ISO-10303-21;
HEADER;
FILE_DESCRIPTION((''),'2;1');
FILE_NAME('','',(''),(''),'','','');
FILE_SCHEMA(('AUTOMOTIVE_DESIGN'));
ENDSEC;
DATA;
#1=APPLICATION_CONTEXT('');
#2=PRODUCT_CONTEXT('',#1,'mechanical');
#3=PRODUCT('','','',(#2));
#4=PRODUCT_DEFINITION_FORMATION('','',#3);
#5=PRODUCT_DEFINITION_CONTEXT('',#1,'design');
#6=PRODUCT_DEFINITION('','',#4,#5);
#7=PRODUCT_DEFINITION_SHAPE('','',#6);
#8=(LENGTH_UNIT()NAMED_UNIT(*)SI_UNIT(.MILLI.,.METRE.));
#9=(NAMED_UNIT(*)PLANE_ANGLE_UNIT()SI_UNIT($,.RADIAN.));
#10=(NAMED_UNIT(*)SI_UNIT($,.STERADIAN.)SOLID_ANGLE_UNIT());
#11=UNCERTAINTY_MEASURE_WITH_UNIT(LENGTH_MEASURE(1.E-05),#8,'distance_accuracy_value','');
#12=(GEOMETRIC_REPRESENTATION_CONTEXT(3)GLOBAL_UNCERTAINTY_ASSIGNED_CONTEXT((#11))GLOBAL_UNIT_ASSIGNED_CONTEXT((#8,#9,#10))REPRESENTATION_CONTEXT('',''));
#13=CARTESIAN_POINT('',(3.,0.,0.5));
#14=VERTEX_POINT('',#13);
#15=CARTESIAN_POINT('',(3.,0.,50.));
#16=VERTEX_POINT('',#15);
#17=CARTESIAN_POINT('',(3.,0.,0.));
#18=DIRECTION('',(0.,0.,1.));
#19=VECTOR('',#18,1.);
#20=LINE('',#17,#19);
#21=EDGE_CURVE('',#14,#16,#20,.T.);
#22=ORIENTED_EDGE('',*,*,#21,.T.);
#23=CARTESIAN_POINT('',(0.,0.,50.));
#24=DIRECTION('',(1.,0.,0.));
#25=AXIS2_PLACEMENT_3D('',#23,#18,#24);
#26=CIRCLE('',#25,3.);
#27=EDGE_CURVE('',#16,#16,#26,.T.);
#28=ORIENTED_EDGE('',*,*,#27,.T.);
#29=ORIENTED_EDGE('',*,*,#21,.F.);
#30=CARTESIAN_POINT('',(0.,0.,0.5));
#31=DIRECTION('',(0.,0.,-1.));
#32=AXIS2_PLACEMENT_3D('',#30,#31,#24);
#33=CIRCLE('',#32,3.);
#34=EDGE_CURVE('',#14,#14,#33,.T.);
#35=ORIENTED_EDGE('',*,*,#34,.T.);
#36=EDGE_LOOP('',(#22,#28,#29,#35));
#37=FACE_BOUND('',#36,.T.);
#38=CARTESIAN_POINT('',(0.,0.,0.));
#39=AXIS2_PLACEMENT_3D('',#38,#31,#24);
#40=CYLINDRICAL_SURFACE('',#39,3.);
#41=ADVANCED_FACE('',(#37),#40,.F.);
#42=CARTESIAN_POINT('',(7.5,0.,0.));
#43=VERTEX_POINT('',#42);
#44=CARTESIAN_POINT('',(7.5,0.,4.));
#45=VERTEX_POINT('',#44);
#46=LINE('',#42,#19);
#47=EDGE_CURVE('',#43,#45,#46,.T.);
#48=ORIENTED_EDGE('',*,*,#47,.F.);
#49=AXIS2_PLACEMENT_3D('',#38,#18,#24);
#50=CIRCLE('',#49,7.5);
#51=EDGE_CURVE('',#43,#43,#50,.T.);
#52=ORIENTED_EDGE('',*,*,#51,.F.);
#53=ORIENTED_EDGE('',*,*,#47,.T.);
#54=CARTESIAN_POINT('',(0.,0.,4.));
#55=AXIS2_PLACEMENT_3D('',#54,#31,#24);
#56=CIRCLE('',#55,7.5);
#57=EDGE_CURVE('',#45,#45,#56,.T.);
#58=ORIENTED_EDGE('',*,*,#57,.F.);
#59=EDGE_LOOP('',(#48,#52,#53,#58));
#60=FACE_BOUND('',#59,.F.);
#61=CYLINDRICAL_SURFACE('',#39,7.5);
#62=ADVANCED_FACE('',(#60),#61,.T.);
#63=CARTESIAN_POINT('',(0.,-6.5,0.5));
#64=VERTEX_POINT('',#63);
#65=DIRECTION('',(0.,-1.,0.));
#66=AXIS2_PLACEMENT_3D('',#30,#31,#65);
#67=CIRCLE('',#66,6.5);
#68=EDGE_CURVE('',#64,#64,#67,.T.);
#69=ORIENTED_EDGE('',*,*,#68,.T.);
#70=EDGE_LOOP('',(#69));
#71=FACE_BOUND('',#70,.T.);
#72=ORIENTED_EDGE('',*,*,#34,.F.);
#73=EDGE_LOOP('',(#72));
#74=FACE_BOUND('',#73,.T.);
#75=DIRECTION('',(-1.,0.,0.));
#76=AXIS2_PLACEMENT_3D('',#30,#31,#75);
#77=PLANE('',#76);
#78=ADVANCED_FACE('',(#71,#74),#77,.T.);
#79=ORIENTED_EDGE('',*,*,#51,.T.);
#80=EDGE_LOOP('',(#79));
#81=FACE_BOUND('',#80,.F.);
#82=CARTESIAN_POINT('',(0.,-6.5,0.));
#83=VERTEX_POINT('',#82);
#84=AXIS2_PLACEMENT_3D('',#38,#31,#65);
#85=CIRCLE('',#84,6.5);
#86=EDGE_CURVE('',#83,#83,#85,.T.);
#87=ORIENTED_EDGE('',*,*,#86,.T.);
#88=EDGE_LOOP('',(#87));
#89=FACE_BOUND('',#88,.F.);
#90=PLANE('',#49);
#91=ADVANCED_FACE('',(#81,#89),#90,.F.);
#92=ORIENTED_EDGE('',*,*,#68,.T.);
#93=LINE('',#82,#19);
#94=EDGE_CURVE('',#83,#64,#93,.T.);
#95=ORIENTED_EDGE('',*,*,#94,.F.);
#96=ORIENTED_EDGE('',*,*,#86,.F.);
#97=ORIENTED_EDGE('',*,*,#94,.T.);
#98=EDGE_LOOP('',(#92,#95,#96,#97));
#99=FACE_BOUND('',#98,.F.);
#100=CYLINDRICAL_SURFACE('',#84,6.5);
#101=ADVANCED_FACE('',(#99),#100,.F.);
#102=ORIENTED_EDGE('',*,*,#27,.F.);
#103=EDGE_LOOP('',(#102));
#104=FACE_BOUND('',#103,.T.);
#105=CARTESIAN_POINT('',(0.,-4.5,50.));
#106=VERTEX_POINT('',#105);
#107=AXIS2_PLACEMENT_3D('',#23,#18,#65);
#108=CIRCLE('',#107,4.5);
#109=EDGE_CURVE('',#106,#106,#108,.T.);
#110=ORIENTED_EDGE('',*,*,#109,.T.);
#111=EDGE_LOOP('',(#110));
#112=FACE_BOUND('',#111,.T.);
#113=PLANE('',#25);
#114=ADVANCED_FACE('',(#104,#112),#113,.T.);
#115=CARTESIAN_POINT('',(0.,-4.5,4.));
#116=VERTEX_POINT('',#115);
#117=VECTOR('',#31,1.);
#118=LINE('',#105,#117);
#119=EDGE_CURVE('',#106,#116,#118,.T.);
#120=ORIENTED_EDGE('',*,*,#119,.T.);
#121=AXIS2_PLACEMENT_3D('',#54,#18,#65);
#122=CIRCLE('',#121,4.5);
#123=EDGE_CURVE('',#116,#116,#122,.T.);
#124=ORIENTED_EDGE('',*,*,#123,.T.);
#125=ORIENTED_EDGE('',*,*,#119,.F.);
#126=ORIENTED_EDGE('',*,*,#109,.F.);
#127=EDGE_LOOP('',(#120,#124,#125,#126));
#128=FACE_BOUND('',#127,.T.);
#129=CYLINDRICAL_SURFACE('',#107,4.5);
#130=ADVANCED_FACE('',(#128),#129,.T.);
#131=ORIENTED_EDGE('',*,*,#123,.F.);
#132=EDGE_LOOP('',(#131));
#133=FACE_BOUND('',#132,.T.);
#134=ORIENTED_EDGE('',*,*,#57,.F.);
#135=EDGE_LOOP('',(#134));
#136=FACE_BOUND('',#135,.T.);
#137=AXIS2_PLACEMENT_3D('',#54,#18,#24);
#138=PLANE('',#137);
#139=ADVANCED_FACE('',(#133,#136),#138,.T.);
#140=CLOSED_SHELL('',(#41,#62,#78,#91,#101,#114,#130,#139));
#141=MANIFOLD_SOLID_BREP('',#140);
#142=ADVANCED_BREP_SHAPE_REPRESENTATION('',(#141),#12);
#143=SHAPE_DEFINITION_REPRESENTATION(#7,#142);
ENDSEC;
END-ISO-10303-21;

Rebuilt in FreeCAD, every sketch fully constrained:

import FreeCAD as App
import Part
import Sketcher
Q = App.Units.Quantity

doc = App.newDocument("Part")
body = doc.addObject("PartDesign::Body", "Body")

# Sketch on XY plane
sketch1 = body.newObject("Sketcher::SketchObject", "Sketch")
sketch1.AttachmentSupport = (doc.getObject("XY_Plane"), [""])
sketch1.MapMode = "FlatFace"
sketch1.addGeometry(Part.Circle(App.Vector(0, 0, 0), App.Vector(0, 0, 1), 7.5), False)
sketch1.addGeometry(Part.Circle(App.Vector(0, 0, 0), App.Vector(0, 0, 1), 3), False)
sketch1.addConstraint(Sketcher.Constraint("Coincident", 0, 3, -1, 1))
sketch1.addConstraint(Sketcher.Constraint("Coincident", 1, 3, -1, 1))
sketch1.addConstraint(Sketcher.Constraint("Diameter", 0, Q("15 mm")))
sketch1.addConstraint(Sketcher.Constraint("Diameter", 1, Q("6 mm")))
pad1 = body.newObject("PartDesign::Pad", "Pad")
pad1.Profile = sketch1
pad1.Length = 50

# Sketch on XY plane
sketch2 = body.newObject("Sketcher::SketchObject", "Sketch001")
sketch2.AttachmentSupport = (doc.getObject("XY_Plane"), [""])
sketch2.MapMode = "FlatFace"
sketch2.AttachmentOffset = App.Placement(App.Vector(0, 0, 50), App.Rotation())
sketch2.addGeometry(Part.Circle(App.Vector(0, 0, 0), App.Vector(0, 0, 1), 7.5), False)
sketch2.addGeometry(Part.Circle(App.Vector(0, 0, 0), App.Vector(0, 0, 1), 4.5), False)
sketch2.addConstraint(Sketcher.Constraint("Coincident", 0, 3, -1, 1))
sketch2.addConstraint(Sketcher.Constraint("Coincident", 1, 3, -1, 1))
sketch2.addConstraint(Sketcher.Constraint("Diameter", 0, Q("15 mm")))
sketch2.addConstraint(Sketcher.Constraint("Diameter", 1, Q("9 mm")))
pocket1 = body.newObject("PartDesign::Pocket", "Pocket")
pocket1.Profile = sketch2
pocket1.Length = 46

# Sketch on XY plane
sketch3 = body.newObject("Sketcher::SketchObject", "Sketch002")
sketch3.AttachmentSupport = (doc.getObject("XY_Plane"), [""])
sketch3.MapMode = "FlatFace"
sketch3.addGeometry(Part.Circle(App.Vector(0, 0, 0), App.Vector(0, 0, 1), 6), False)
sketch3.addConstraint(Sketcher.Constraint("Coincident", 0, 3, -1, 1))
sketch3.addConstraint(Sketcher.Constraint("Diameter", 0, Q("13 mm")))
pocket2 = body.newObject("PartDesign::Pocket", "Pocket001")
pocket2.Profile = sketch3
pocket2.Length = 0.5
pocket2.Reversed = True

doc.recompute()
